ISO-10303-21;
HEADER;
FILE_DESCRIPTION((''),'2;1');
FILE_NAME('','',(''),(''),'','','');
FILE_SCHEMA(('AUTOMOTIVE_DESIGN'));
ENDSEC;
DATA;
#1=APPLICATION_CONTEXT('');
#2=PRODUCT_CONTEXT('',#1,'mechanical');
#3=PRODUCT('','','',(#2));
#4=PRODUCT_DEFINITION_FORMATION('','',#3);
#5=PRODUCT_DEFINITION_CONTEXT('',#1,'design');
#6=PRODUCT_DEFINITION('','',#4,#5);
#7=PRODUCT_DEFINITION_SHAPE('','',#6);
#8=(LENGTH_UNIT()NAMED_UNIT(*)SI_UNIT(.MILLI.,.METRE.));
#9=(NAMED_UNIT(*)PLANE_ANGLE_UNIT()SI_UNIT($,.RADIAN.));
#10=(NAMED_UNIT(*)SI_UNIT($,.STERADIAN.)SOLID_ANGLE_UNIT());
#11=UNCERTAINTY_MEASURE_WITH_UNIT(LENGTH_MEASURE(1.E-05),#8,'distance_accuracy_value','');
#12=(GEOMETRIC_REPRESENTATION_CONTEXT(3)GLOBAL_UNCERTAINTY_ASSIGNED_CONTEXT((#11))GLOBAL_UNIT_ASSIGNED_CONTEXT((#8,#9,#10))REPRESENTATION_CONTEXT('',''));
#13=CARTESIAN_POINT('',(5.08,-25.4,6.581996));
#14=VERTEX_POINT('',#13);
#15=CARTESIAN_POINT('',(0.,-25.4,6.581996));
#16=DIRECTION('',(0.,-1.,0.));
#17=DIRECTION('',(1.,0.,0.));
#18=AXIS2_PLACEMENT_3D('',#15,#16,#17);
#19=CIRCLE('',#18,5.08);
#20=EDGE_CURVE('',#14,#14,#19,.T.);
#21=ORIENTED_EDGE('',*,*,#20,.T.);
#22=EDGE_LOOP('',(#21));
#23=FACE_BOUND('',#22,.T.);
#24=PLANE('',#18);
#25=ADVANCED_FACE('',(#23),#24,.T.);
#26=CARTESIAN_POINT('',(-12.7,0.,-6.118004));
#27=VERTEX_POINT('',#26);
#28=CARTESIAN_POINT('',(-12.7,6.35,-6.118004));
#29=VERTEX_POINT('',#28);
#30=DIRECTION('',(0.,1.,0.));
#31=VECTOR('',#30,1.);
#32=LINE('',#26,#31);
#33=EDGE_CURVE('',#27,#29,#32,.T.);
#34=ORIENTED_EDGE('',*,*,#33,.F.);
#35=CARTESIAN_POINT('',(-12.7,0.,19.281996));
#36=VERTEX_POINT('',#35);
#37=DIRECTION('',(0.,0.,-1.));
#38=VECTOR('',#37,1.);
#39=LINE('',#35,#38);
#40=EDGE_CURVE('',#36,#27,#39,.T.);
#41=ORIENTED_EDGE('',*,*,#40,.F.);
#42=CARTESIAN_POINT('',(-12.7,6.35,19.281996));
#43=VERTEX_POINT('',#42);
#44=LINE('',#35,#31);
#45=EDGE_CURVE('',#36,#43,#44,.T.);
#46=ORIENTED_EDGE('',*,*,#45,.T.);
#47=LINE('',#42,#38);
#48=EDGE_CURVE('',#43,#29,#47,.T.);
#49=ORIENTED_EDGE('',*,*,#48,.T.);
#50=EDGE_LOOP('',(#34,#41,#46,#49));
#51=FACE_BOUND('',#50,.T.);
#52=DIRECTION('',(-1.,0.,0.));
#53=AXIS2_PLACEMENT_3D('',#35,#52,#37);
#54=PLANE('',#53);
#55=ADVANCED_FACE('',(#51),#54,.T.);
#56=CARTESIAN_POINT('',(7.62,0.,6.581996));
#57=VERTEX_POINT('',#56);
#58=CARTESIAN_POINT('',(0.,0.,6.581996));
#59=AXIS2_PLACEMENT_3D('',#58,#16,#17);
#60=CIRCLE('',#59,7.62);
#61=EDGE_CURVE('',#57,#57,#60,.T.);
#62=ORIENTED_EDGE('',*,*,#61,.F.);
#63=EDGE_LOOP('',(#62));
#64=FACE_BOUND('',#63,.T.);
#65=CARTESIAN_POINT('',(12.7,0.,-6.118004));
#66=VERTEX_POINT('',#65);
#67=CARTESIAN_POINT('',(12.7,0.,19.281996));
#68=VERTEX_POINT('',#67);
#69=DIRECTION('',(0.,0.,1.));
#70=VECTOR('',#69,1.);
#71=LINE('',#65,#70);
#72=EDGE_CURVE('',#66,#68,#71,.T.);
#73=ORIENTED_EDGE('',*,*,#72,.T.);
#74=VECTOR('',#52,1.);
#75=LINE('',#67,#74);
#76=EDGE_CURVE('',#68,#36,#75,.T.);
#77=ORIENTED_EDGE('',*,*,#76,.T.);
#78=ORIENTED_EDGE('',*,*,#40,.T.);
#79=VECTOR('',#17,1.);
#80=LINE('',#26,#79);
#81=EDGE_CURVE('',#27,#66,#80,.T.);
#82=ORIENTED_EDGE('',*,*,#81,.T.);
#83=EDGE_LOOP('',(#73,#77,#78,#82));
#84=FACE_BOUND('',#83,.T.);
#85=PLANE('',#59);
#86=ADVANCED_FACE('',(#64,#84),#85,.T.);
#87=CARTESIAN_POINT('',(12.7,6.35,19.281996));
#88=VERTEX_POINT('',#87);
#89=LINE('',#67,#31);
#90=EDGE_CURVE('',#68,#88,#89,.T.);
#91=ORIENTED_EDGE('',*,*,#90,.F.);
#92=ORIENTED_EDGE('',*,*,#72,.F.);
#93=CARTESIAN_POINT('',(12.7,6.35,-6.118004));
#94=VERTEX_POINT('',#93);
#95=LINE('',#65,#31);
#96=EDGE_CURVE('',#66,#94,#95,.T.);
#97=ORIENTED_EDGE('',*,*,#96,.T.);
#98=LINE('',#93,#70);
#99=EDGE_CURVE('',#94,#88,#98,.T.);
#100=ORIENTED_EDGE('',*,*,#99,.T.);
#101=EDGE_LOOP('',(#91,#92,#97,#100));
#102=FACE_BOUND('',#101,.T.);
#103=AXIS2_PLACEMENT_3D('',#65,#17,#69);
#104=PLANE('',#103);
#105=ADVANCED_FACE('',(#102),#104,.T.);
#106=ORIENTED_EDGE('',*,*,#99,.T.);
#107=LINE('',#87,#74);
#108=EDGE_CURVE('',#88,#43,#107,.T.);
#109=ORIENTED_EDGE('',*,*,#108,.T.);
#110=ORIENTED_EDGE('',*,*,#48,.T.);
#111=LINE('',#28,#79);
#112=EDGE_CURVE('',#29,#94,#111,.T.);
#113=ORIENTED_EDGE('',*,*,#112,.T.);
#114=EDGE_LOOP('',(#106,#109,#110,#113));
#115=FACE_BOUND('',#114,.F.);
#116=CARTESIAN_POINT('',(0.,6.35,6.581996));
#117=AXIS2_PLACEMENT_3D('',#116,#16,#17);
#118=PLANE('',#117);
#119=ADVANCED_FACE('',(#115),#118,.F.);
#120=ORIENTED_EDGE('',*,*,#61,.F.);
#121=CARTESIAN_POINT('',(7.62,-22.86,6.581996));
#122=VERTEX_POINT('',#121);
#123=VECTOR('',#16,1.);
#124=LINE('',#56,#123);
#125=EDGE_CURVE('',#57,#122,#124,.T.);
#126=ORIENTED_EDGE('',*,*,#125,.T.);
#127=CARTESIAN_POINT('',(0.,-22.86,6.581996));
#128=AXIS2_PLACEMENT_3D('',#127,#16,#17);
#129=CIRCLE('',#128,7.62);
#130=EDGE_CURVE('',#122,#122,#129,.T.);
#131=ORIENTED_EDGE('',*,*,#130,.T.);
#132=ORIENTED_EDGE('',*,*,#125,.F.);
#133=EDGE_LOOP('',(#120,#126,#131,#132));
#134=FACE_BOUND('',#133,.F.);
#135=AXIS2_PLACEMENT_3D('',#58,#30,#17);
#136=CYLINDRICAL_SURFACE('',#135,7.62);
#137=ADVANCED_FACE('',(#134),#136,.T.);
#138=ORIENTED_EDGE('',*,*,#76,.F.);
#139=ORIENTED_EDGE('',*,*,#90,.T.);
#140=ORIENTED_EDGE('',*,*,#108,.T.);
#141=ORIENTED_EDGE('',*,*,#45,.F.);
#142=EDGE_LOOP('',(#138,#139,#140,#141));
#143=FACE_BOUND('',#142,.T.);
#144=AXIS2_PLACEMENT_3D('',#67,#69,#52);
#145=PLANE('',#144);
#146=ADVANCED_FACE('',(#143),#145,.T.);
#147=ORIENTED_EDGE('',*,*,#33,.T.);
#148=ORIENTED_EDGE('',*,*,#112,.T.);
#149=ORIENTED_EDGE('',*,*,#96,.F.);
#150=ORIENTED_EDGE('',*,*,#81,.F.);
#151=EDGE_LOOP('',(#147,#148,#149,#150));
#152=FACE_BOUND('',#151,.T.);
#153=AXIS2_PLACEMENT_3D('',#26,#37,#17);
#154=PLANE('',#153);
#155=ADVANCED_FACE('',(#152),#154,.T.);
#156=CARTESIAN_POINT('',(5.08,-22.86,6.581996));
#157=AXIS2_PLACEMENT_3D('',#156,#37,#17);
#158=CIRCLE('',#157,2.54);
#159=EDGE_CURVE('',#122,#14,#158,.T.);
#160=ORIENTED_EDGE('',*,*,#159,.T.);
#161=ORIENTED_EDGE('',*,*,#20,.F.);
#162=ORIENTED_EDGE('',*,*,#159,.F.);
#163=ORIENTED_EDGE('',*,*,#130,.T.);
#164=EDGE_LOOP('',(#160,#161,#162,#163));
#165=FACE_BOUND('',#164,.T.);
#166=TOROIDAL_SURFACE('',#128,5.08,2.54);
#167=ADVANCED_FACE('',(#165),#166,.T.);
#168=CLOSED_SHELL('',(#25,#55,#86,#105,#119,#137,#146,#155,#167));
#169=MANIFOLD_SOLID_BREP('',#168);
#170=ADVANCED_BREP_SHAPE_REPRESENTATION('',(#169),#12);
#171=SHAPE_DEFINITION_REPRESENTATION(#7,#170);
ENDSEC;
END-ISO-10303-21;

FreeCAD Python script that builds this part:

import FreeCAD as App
import Part
import Sketcher

V = App.Vector
Q = App.Units.Quantity


def edges_at(feature, points):
    """Names of the edges that pass closest to the given points."""
    edges = feature.Shape.Edges
    near = lambda p: min(range(len(edges)), key=lambda i: edges[i].distToShape(Part.Vertex(*p))[0])
    return sorted({f"Edge{near(p) + 1}" for p in points})

doc = App.newDocument("Part")
body = doc.addObject("PartDesign::Body", "Body")

# Sketch on XZ plane
sketch1 = doc.addObject("Sketcher::SketchObject", "Sketch")
body.addObject(sketch1)
sketch1.AttachmentSupport = (doc.XZ_Plane, [""])
sketch1.MapMode = "FlatFace"
sketch1.addGeometry(Part.Circle(V(0, 6.581996, 0), V(0, 0, 1), 7.62), False)
sketch1.addConstraint([
    Sketcher.Constraint("PointOnObject", 0, 3, -2),
    Sketcher.Constraint("Diameter", 0, Q("0.6 in")),
    Sketcher.Constraint("DistanceY", -1, 1, 0, 3, 6.581996),
])
pad1 = doc.addObject("PartDesign::Pad", "Pad")
body.addObject(pad1)
pad1.Profile = sketch1
pad1.Length = Q("1 in")
doc.recompute()

fillet = doc.addObject("PartDesign::Fillet", "Fillet")
body.addObject(fillet)
fillet.Base = (pad1, edges_at(pad1, [(-7.62, -25.4, 6.582)]))
fillet.Radius = Q("0.1 in")

# Sketch on XZ plane
sketch2 = doc.addObject("Sketcher::SketchObject", "Sketch001")
body.addObject(sketch2)
sketch2.AttachmentSupport = (doc.XZ_Plane, [""])
sketch2.MapMode = "FlatFace"
sketch2.addGeometry([
    Part.LineSegment(V(-12.7, 19.281996, 0), V(-12.7, -6.118004, 0)),
    Part.LineSegment(V(-12.7, -6.118004, 0), V(12.7, -6.118004, 0)),
    Part.LineSegment(V(12.7, -6.118004, 0), V(12.7, 19.281996, 0)),
    Part.LineSegment(V(12.7, 19.281996, 0), V(-12.7, 19.281996, 0)),
], False)
sketch2.addConstraint([
    Sketcher.Constraint("Coincident", 0, 2, 1, 1),
    Sketcher.Constraint("Coincident", 1, 2, 2, 1),
    Sketcher.Constraint("Coincident", 2, 2, 3, 1),
    Sketcher.Constraint("Coincident", 3, 2, 0, 1),
    Sketcher.Constraint("Vertical", 0),
    Sketcher.Constraint("Horizontal", 1),
    Sketcher.Constraint("Vertical", 2),
    Sketcher.Constraint("Horizontal", 3),
    Sketcher.Constraint("Equal", 3, 0),
    Sketcher.Constraint("DistanceX", 1, 1, 1, 2, Q("1 in")),
    Sketcher.Constraint("DistanceX", 0, 2, -1, 1, Q("0.5 in")),
    Sketcher.Constraint("DistanceY", 0, 2, -1, 1, 6.118004),
])
pad2 = doc.addObject("PartDesign::Pad", "Pad001")
body.addObject(pad2)
pad2.Profile = sketch2
pad2.Length = Q("0.25 in")
pad2.Reversed = True

doc.recompute()
